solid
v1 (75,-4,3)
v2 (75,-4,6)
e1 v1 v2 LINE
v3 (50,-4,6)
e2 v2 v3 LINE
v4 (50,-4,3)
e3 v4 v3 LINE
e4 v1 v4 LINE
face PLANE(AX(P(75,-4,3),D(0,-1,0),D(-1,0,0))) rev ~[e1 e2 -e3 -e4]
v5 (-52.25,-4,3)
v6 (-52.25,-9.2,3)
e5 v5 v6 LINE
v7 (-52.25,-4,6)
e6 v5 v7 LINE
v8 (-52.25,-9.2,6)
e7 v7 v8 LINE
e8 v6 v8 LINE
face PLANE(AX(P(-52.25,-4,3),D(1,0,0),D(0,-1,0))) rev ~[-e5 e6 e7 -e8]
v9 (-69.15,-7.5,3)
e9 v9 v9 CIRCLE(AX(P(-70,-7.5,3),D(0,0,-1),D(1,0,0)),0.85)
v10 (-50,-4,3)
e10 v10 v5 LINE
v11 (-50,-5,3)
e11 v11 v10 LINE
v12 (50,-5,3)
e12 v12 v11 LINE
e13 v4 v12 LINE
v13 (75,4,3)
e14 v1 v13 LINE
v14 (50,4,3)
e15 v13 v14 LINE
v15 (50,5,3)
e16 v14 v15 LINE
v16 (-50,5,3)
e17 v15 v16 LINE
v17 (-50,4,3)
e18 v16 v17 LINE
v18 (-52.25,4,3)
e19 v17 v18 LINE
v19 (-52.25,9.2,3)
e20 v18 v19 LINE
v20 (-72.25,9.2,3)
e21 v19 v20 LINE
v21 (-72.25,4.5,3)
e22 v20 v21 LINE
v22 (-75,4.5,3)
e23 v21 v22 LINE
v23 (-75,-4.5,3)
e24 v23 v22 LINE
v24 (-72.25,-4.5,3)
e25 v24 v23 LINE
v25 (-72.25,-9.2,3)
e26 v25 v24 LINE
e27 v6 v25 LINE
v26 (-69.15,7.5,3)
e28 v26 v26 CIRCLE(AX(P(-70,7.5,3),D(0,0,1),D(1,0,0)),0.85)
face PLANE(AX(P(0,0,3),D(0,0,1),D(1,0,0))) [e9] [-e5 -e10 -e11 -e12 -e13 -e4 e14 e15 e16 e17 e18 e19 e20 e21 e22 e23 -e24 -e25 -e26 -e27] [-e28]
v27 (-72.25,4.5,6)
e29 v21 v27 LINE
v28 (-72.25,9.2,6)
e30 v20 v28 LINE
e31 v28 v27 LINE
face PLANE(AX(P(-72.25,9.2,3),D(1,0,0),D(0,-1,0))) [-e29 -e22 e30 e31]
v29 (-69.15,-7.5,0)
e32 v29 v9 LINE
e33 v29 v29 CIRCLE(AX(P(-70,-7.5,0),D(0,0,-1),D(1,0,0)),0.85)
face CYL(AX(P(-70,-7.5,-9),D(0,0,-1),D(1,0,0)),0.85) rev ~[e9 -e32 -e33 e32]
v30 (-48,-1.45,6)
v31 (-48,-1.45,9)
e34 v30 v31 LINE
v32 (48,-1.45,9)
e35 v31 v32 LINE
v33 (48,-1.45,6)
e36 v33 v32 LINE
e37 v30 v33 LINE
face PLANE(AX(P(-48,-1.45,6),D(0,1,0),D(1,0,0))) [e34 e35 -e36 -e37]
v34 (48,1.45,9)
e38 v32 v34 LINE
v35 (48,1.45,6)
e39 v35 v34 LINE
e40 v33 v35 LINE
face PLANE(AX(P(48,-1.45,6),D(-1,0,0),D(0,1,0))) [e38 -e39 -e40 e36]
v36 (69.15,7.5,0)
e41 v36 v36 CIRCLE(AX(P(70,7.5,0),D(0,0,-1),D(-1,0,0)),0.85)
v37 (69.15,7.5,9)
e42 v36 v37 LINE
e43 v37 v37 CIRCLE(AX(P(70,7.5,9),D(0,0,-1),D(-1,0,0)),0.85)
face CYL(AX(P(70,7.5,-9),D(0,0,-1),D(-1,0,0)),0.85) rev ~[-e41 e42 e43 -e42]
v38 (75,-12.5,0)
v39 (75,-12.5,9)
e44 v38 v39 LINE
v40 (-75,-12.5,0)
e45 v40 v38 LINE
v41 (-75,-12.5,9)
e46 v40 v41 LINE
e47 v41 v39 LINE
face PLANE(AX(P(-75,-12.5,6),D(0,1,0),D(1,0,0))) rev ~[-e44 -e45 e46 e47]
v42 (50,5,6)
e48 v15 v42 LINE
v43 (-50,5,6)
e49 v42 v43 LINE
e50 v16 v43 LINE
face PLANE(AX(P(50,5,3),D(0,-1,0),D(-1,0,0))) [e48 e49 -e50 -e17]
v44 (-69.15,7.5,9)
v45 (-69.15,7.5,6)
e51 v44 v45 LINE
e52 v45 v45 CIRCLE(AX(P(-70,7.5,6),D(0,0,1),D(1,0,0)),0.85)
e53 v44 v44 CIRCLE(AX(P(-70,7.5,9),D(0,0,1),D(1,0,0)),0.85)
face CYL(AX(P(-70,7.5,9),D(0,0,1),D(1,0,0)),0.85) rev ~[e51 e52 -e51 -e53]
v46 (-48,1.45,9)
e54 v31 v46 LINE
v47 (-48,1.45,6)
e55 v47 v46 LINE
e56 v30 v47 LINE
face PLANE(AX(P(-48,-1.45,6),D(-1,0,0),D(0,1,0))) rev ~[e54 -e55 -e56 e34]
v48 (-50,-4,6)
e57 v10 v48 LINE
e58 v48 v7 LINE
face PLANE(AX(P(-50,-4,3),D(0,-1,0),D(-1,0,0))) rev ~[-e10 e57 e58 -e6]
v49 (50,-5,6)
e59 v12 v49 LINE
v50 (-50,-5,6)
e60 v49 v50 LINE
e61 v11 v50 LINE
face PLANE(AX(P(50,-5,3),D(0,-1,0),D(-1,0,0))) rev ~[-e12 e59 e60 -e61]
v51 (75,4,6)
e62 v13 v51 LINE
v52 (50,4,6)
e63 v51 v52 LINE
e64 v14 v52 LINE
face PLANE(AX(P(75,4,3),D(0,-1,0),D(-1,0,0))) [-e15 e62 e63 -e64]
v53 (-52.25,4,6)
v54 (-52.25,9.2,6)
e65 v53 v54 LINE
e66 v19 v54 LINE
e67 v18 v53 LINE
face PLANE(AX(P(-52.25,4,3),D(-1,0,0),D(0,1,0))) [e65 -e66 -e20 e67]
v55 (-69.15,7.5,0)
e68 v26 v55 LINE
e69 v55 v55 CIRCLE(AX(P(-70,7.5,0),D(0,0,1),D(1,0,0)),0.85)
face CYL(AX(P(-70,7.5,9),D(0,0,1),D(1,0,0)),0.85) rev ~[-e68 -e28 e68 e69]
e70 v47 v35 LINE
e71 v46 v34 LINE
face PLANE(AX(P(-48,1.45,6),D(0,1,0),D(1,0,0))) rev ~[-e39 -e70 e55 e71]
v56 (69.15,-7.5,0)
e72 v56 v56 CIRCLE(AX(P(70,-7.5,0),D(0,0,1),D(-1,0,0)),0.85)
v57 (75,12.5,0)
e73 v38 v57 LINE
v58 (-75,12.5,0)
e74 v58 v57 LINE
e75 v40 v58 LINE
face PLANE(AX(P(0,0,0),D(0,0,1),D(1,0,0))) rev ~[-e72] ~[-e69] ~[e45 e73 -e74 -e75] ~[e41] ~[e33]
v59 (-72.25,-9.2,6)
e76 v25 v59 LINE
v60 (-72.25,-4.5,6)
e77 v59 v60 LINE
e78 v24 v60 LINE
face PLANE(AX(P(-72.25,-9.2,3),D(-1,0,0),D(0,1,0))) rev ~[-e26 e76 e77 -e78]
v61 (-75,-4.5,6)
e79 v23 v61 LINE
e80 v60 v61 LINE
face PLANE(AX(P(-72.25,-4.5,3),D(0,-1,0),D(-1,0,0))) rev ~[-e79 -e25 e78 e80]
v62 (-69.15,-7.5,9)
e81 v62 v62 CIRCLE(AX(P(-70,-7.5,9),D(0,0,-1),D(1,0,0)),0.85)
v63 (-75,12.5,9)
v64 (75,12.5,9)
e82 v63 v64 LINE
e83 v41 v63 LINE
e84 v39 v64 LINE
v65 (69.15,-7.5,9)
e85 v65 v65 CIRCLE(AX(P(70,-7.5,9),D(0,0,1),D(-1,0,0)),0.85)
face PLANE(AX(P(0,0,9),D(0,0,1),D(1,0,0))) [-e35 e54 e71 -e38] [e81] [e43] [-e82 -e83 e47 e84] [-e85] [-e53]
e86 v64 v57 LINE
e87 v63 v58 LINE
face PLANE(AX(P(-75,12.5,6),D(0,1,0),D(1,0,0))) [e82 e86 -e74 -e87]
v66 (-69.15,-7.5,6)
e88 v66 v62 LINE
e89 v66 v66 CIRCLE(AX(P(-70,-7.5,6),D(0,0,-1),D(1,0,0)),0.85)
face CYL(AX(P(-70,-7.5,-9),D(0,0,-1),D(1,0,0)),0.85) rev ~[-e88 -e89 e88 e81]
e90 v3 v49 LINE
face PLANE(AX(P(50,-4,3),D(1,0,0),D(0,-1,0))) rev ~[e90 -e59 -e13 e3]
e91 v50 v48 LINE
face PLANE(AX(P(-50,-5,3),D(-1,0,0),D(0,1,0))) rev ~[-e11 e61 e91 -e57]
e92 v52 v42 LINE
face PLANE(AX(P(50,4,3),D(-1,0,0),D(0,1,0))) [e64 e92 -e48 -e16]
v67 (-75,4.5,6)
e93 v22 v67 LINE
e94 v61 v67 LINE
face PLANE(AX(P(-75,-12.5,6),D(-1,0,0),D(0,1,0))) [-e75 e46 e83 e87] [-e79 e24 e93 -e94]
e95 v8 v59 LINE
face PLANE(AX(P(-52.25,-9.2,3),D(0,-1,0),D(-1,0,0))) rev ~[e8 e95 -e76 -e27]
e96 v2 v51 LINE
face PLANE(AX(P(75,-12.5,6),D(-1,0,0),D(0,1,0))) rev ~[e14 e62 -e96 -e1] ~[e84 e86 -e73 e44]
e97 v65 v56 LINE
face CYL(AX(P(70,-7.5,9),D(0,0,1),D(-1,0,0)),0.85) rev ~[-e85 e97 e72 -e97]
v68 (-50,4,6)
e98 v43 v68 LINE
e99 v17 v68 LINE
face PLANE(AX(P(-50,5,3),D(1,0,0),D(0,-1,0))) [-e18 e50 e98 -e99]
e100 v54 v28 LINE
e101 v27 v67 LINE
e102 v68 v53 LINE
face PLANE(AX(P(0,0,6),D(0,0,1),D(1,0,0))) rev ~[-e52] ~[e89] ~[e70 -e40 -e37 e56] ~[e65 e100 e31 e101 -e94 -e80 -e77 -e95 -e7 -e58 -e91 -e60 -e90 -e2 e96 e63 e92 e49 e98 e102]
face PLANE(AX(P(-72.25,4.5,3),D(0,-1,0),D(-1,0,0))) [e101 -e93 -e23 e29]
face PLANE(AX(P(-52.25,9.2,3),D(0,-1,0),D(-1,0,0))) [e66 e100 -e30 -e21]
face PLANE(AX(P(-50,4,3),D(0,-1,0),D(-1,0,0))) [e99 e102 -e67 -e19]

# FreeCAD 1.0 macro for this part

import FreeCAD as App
import Part
import Sketcher
Q = App.Units.Quantity


def add_polygon(sketch, points):
    """Adds a closed chain of lines whose ends are joined by coincident constraints."""
    first, n = sketch.GeometryCount, len(points)
    for a, b in zip(points, points[1:] + points[:1]):
        sketch.addGeometry(Part.LineSegment(App.Vector(*a, 0), App.Vector(*b, 0)), False)
    for i in range(n):
        sketch.addConstraint(Sketcher.Constraint("Coincident", first + i, 2, first + (i + 1) % n, 1))

doc = App.newDocument("Part")
body = doc.addObject("PartDesign::Body", "Body")

# Sketch on XY plane
sketch1 = body.newObject("Sketcher::SketchObject", "Sketch")
sketch1.AttachmentSupport = (doc.getObject("XY_Plane"), [""])
sketch1.MapMode = "FlatFace"
add_polygon(sketch1, [(-75, 12), (-75, -12), (75, -12), (75, 12)])  # lines 0-3
sketch1.addConstraint([
    Sketcher.Constraint("Vertical", 0),
    Sketcher.Constraint("Horizontal", 1),
    Sketcher.Constraint("Vertical", 2),
    Sketcher.Constraint("Horizontal", 3),
    Sketcher.Constraint("Symmetric", 0, 2, 2, 2, -1, 1),
    Sketcher.Constraint("DistanceX", 1, 1, 1, 2, Q("150 mm")),
    Sketcher.Constraint("DistanceY", 0, 2, 0, 1, Q("25 mm")),
])
pad1 = body.newObject("PartDesign::Pad", "Pad")
pad1.Profile = sketch1
pad1.Length = 3

# Sketch on XY plane
sketch2 = body.newObject("Sketcher::SketchObject", "Sketch001")
sketch2.AttachmentSupport = (doc.getObject("XY_Plane"), [""])
sketch2.MapMode = "FlatFace"
sketch2.AttachmentOffset = App.Placement(App.Vector(0, 0, 3), App.Rotation())
add_polygon(sketch2, [(75, 12.5), (-75, 12.5), (-75, 4.5), (-72.2, 4.5), (-72.2, 9.2), (-52.2, 9.2), (-52.2, 4), (-50, 4), (-50, 5), (50, 5), (50, 4), (75, 4)])  # lines 0-11
add_polygon(sketch2, [(-75, -12.5), (75, -12.5), (75, -4), (50, -4), (50, -5), (-50, -5), (-50, -4), (-52.2, -4), (-52.2, -9.2), (-72.2, -9.2), (-72.2, -4.5), (-75, -4.5)])  # lines 12-23
sketch2.addConstraint([
    Sketcher.Constraint("Horizontal", 0),
    Sketcher.Constraint("Vertical", 1),
    Sketcher.Constraint("Horizontal", 2),
    Sketcher.Constraint("Vertical", 3),
    Sketcher.Constraint("Horizontal", 4),
    Sketcher.Constraint("Vertical", 5),
    Sketcher.Constraint("Horizontal", 6),
    Sketcher.Constraint("Vertical", 7),
    Sketcher.Constraint("Horizontal", 8),
    Sketcher.Constraint("Vertical", 9),
    Sketcher.Constraint("Horizontal", 10),
    Sketcher.Constraint("Vertical", 11),
    Sketcher.Constraint("Horizontal", 12),
    Sketcher.Constraint("Vertical", 13),
    Sketcher.Constraint("Horizontal", 14),
    Sketcher.Constraint("Vertical", 15),
    Sketcher.Constraint("Horizontal", 16),
    Sketcher.Constraint("Vertical", 17),
    Sketcher.Constraint("Horizontal", 18),
    Sketcher.Constraint("Vertical", 19),
    Sketcher.Constraint("Horizontal", 20),
    Sketcher.Constraint("Vertical", 21),
    Sketcher.Constraint("Horizontal", 22),
    Sketcher.Constraint("Vertical", 23),
    Sketcher.Constraint("Symmetric", 0, 2, 12, 2, -1, 1),
    Sketcher.Constraint("Symmetric", 6, 2, 14, 2, -1, 1),
    Sketcher.Constraint("Symmetric", 8, 2, 16, 2, -1, 1),
    Sketcher.Constraint("Symmetric", 6, 2, 9, 2, -2),
    Sketcher.Constraint("Symmetric", 5, 2, 18, 2, -1),
    Sketcher.Constraint("Symmetric", 3, 2, 20, 2, -1),
    Sketcher.Constraint("Symmetric", 1, 2, 22, 2, -1),
    Sketcher.Constraint("Vertical", 11, 2, 12, 2),
    Sketcher.Constraint("DistanceX", 0, 2, 0, 1, Q("150 mm")),
    Sketcher.Constraint("DistanceX", 4, 1, 4, 2, Q("20 mm")),
    Sketcher.Constraint("DistanceX", 8, 1, 8, 2, Q("100 mm")),
    Sketcher.Constraint("DistanceY", 1, 2, 1, 1, Q("8 mm")),
    Sketcher.Constraint("DistanceY", 7, 1, 7, 2, Q("1 mm")),
    Sketcher.Constraint("DistanceY", 3, 1, 3, 2, Q("4.7 mm")),
    Sketcher.Constraint("DistanceY", 5, 2, 5, 1, Q("5.2 mm")),
    Sketcher.Constraint("DistanceY", -1, 1, 5, 2, Q("4 mm")),
    Sketcher.Constraint("DistanceX", 2, 1, 2, 2, Q("2.75 mm")),
])
pad2 = body.newObject("PartDesign::Pad", "Pad001")
pad2.Profile = sketch2
pad2.Length = 3

# Sketch on XY plane
sketch3 = body.newObject("Sketcher::SketchObject", "Sketch002")
sketch3.AttachmentSupport = (doc.getObject("XY_Plane"), [""])
sketch3.MapMode = "FlatFace"
sketch3.AttachmentOffset = App.Placement(App.Vector(0, 0, 6), App.Rotation())
add_polygon(sketch3, [(-75, 12.5), (-75, -12.5), (75, -12.5), (75, 12.5)])  # lines 0-3
add_polygon(sketch3, [(48, -1.4), (-48, -1.4), (-48, 1.4), (48, 1.4)])  # lines 4-7
sketch3.addConstraint([
    Sketcher.Constraint("Vertical", 0),
    Sketcher.Constraint("Horizontal", 1),
    Sketcher.Constraint("Vertical", 2),
    Sketcher.Constraint("Horizontal", 3),
    Sketcher.Constraint("Horizontal", 4),
    Sketcher.Constraint("Vertical", 5),
    Sketcher.Constraint("Horizontal", 6),
    Sketcher.Constraint("Vertical", 7),
    Sketcher.Constraint("Symmetric", 0, 2, 2, 2, -1, 1),
    Sketcher.Constraint("Symmetric", 4, 2, 6, 2, -1, 1),
    Sketcher.Constraint("DistanceX", 1, 1, 1, 2, Q("150 mm")),
    Sketcher.Constraint("DistanceX", 4, 2, 4, 1, Q("96 mm")),
    Sketcher.Constraint("DistanceY", 0, 2, 0, 1, Q("25 mm")),
    Sketcher.Constraint("DistanceY", 5, 1, 5, 2, Q("2.9 mm")),
])
pad3 = body.newObject("PartDesign::Pad", "Pad002")
pad3.Profile = sketch3
pad3.Length = 3

# Sketch on XY plane
sketch4 = body.newObject("Sketcher::SketchObject", "Sketch003")
sketch4.AttachmentSupport = (doc.getObject("XY_Plane"), [""])
sketch4.MapMode = "FlatFace"
sketch4.AttachmentOffset = App.Placement(App.Vector(0, 0, 9), App.Rotation())
sketch4.addGeometry(Part.Circle(App.Vector(-70, 7.5, 0), App.Vector(0, 0, 1), 0.8), False)
sketch4.addConstraint([
    Sketcher.Constraint("Diameter", 0, Q("1.7 mm")),
    Sketcher.Constraint("DistanceX", 0, 3, -1, 1, Q("70 mm")),
    Sketcher.Constraint("DistanceY", -1, 1, 0, 3, Q("7.5 mm")),
])
pocket1 = body.newObject("PartDesign::Pocket", "Pocket")
pocket1.Profile = sketch4
pocket1.Type = "ThroughAll"
doc.recompute()

polarpattern = body.newObject("PartDesign::PolarPattern", "PolarPattern")
polarpattern.Originals = [pocket1]
polarpattern.Axis = (doc.getObject("Z_Axis"), [""])
polarpattern.Angle = 360
polarpattern.Occurrences = 2
body.Tip = polarpattern
doc.recompute()

polarpattern2 = body.newObject("PartDesign::PolarPattern", "PolarPattern001")
polarpattern2.Originals = [pocket1]
polarpattern2.Axis = (doc.getObject("Y_Axis"), [""])
polarpattern2.Angle = 360
polarpattern2.Occurrences = 2
body.Tip = polarpattern2
doc.recompute()

polarpattern3 = body.newObject("PartDesign::PolarPattern", "PolarPattern002")
polarpattern3.Originals = [pocket1]
polarpattern3.Axis = (doc.getObject("X_Axis"), [""])
polarpattern3.Angle = 360
polarpattern3.Occurrences = 2
body.Tip = polarpattern3

doc.recompute()
